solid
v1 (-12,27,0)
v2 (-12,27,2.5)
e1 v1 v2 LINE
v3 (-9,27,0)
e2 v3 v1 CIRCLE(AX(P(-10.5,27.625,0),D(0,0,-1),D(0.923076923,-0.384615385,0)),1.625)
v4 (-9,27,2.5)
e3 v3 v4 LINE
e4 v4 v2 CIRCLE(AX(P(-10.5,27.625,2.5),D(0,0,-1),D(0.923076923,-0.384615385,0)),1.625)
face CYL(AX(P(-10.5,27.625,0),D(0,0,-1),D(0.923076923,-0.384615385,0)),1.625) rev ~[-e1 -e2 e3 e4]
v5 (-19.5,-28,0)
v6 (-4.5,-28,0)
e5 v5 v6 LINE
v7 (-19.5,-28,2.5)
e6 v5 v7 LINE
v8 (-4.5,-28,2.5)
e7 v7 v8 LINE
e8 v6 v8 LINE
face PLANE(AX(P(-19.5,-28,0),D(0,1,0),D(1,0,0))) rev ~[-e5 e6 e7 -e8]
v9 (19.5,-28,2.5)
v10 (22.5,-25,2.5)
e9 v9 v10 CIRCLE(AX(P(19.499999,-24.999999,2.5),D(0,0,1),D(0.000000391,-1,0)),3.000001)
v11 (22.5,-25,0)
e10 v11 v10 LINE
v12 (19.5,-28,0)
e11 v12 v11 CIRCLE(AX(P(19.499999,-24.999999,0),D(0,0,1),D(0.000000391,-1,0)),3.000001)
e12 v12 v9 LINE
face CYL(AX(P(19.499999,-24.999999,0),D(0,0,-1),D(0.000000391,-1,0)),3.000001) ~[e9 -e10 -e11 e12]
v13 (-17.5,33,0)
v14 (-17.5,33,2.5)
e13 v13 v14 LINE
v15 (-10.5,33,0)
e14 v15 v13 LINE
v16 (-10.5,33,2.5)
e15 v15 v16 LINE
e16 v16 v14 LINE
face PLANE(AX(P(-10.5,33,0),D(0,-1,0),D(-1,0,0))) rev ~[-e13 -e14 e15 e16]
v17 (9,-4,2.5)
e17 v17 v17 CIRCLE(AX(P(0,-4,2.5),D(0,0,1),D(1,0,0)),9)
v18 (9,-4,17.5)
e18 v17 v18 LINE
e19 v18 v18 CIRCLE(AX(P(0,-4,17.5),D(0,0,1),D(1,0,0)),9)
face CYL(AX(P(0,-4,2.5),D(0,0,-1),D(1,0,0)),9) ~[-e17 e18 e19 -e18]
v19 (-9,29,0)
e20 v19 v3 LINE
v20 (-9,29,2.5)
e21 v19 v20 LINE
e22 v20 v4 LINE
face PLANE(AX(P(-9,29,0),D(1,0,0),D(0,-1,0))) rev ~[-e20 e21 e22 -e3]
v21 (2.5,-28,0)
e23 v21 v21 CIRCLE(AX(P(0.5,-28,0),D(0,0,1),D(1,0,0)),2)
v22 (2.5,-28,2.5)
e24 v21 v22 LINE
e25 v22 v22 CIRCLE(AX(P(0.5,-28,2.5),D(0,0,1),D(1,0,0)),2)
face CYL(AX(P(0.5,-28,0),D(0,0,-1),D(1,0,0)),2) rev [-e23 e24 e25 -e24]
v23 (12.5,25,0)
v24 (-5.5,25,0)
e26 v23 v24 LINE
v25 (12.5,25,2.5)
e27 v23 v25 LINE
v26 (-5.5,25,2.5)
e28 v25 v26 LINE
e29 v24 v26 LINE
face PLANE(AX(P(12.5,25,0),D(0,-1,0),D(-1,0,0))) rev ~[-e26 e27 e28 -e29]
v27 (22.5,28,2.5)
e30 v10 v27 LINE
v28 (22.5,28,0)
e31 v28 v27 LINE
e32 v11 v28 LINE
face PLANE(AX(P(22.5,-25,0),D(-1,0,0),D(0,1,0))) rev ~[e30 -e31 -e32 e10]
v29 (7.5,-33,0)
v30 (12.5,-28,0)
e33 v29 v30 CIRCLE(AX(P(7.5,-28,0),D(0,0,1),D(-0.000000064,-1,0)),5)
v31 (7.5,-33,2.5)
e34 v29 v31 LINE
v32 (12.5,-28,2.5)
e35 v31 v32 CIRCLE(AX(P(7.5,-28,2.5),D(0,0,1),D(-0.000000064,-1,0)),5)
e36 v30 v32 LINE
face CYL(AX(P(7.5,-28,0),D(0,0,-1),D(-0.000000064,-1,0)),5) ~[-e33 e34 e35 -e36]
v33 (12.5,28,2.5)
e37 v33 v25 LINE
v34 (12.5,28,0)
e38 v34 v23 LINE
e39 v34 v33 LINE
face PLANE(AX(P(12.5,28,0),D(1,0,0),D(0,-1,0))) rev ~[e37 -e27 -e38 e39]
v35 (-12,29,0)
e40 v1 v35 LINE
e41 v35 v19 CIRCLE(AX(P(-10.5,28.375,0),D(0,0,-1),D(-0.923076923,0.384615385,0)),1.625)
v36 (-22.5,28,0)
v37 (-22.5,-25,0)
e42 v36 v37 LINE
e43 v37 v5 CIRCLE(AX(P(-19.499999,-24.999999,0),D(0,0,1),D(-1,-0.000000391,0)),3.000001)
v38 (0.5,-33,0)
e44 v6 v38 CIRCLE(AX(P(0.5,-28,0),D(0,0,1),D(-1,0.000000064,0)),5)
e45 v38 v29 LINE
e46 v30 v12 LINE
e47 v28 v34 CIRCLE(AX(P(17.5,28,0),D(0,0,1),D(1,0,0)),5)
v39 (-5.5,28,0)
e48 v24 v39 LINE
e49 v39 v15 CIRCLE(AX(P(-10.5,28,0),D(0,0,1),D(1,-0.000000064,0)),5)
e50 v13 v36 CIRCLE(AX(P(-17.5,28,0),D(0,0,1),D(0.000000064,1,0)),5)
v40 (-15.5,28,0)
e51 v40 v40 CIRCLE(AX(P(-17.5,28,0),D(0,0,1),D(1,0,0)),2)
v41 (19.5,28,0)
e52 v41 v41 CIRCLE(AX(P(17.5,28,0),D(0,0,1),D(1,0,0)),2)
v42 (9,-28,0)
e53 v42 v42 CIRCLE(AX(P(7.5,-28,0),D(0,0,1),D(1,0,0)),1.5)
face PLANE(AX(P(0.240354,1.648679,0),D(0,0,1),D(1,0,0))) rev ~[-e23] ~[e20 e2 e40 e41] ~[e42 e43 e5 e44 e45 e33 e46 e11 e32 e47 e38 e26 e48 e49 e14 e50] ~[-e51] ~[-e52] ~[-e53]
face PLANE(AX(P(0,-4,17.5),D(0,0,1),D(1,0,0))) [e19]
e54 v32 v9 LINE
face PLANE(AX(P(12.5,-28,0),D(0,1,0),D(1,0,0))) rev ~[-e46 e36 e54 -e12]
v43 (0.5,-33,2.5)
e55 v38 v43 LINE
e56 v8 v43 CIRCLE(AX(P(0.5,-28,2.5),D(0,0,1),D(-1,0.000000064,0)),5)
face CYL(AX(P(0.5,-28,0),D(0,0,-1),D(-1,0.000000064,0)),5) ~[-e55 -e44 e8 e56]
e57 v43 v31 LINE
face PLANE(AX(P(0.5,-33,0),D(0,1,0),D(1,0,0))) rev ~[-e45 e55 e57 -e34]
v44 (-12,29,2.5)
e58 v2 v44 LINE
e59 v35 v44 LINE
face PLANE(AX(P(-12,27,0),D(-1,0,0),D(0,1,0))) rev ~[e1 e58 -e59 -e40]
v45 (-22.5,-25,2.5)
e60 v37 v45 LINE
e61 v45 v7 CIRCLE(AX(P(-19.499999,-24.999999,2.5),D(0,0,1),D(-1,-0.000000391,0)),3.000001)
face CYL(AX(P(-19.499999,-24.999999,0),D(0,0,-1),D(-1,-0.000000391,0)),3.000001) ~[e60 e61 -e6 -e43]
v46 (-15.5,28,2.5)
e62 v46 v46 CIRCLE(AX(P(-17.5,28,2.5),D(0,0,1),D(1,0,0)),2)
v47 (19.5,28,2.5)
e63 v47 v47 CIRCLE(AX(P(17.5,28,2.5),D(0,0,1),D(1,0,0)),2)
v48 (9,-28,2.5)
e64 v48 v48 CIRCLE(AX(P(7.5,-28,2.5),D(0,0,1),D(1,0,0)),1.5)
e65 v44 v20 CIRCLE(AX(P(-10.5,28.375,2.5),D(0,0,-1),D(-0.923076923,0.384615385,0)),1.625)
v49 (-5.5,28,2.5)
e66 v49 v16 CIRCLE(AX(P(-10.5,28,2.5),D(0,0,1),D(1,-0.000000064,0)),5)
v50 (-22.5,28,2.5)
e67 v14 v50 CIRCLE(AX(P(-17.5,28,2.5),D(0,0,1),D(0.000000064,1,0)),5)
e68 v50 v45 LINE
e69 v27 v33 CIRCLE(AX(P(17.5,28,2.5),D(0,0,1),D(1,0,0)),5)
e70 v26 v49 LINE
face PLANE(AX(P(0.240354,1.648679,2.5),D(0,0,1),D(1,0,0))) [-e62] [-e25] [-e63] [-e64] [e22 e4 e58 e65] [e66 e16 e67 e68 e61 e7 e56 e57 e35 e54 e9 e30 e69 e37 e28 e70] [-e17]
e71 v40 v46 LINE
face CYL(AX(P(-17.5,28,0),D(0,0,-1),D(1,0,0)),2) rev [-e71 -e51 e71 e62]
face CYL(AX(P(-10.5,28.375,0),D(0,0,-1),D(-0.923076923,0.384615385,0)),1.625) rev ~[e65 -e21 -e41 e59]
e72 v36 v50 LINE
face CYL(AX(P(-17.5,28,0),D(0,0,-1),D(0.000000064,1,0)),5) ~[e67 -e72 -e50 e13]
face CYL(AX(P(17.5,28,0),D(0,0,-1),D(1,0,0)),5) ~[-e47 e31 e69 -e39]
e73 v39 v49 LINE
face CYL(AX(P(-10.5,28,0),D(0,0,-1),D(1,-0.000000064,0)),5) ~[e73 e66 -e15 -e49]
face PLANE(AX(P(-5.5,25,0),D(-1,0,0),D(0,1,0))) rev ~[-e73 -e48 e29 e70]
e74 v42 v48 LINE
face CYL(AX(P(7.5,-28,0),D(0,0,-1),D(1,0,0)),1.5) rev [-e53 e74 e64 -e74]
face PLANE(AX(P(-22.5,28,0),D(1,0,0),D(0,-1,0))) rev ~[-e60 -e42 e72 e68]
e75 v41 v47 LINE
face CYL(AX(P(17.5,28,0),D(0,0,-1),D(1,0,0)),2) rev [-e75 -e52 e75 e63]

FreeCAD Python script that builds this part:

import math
import FreeCAD as App
import Part
import Sketcher
from FreeCAD import Vector

doc = App.newDocument("Part")
body = doc.addObject("PartDesign::Body", "Body")

# Sketch on XY plane
sketch1 = body.newObject("Sketcher::SketchObject", "Sketch")
sketch1.AttachmentSupport = (doc.getObject("XY_Plane"), [""])
sketch1.MapMode = "FlatFace"
sketch1.addGeometry([
    Part.ArcOfCircle(Part.Circle(Vector(19.499999, -24.999999, 0), Vector(0, 0, 1), 3.000001), math.radians(-89.999978), math.radians(-0.000022)),  # 0
    Part.LineSegment(Vector(22.5, -25, 0), Vector(22.5, 28, 0)),  # 1
    Part.ArcOfCircle(Part.Circle(Vector(17.5, 28, 0), Vector(0, 0, 1), 5), math.radians(0), math.radians(180)),  # 2
    Part.LineSegment(Vector(12.5, 28, 0), Vector(12.5, 25, 0)),  # 3
    Part.LineSegment(Vector(12.5, 25, 0), Vector(-5.5, 25, 0)),  # 4
    Part.LineSegment(Vector(-5.5, 25, 0), Vector(-5.5, 28, 0)),  # 5
    Part.ArcOfCircle(Part.Circle(Vector(-10.5, 28, 0), Vector(0, 0, 1), 5), math.radians(-0.000004), math.radians(90.000004)),  # 6
    Part.LineSegment(Vector(-10.5, 33, 0), Vector(-17.5, 33, 0)),  # 7
    Part.ArcOfCircle(Part.Circle(Vector(-17.5, 28, 0), Vector(0, 0, 1), 5), math.radians(89.999996), math.radians(180.000004)),  # 8
    Part.LineSegment(Vector(-22.5, 28, 0), Vector(-22.5, -25, 0)),  # 9
    Part.ArcOfCircle(Part.Circle(Vector(-19.499999, -24.999999, 0), Vector(0, 0, 1), 3.000001), math.radians(-179.999978), math.radians(-90.000022)),  # 10
    Part.LineSegment(Vector(-19.5, -28, 0), Vector(-4.5, -28, 0)),  # 11
    Part.ArcOfCircle(Part.Circle(Vector(0.5, -28, 0), Vector(0, 0, 1), 5), math.radians(179.999996), math.radians(270.000004)),  # 12
    Part.LineSegment(Vector(0.5, -33, 0), Vector(7.5, -33, 0)),  # 13
    Part.ArcOfCircle(Part.Circle(Vector(7.5, -28, 0), Vector(0, 0, 1), 5), math.radians(-90.000004), math.radians(0.000004)),  # 14
    Part.LineSegment(Vector(12.5, -28, 0), Vector(19.5, -28, 0)),  # 15
    Part.Circle(Vector(0.5, -28, 0), Vector(0, 0, 1), 2),  # 16
    Part.Circle(Vector(7.5, -28, 0), Vector(0, 0, 1), 1.5),  # 17
    Part.Circle(Vector(-17.5, 28, 0), Vector(0, 0, 1), 2),  # 18
    Part.ArcOfCircle(Part.Circle(Vector(-10.5, 27.625, 0), Vector(0, 0, 1), 1.625), math.radians(-157.380135), math.radians(-22.619865)),  # 19
    Part.LineSegment(Vector(-12, 27, 0), Vector(-12, 29, 0)),  # 20
    Part.ArcOfCircle(Part.Circle(Vector(-10.5, 28.375, 0), Vector(0, 0, 1), 1.625), math.radians(22.619865), math.radians(157.380135)),  # 21
    Part.LineSegment(Vector(-9, 29, 0), Vector(-9, 27, 0)),  # 22
    Part.Circle(Vector(17.5, 28, 0), Vector(0, 0, 1), 2),  # 23
], False)
sketch1.addConstraint([
    Sketcher.Constraint("Tangent", 0, 2, 1, 1),
    Sketcher.Constraint("Tangent", 1, 2, 2, 1),
    Sketcher.Constraint("Tangent", 2, 2, 3, 1),
    Sketcher.Constraint("Coincident", 3, 2, 4, 1),
    Sketcher.Constraint("Coincident", 4, 2, 5, 1),
    Sketcher.Constraint("Tangent", 5, 2, 6, 1),
    Sketcher.Constraint("Tangent", 6, 2, 7, 1),
    Sketcher.Constraint("Tangent", 7, 2, 8, 1),
    Sketcher.Constraint("Tangent", 8, 2, 9, 1),
    Sketcher.Constraint("Tangent", 9, 2, 10, 1),
    Sketcher.Constraint("Tangent", 10, 2, 11, 1),
    Sketcher.Constraint("Coincident", 11, 2, 12, 1),
    Sketcher.Constraint("Tangent", 12, 2, 13, 1),
    Sketcher.Constraint("Tangent", 13, 2, 14, 1),
    Sketcher.Constraint("Coincident", 14, 2, 15, 1),
    Sketcher.Constraint("Tangent", 15, 2, 0, 1),
    Sketcher.Constraint("Coincident", 19, 1, 20, 1),
    Sketcher.Constraint("Coincident", 20, 2, 21, 2),
    Sketcher.Constraint("Coincident", 21, 1, 22, 1),
    Sketcher.Constraint("Coincident", 22, 2, 19, 2),
    Sketcher.Constraint("Vertical", 1),
    Sketcher.Constraint("Vertical", 3),
    Sketcher.Constraint("Horizontal", 4),
    Sketcher.Constraint("Vertical", 5),
    Sketcher.Constraint("Horizontal", 7),
    Sketcher.Constraint("Vertical", 9),
    Sketcher.Constraint("Horizontal", 11),
    Sketcher.Constraint("Horizontal", 13),
    Sketcher.Constraint("Horizontal", 15),
    Sketcher.Constraint("Vertical", 20),
    Sketcher.Constraint("Vertical", 22),
    Sketcher.Constraint("Coincident", 16, 3, 12, 3),
    Sketcher.Constraint("Coincident", 17, 3, 14, 3),
    Sketcher.Constraint("Coincident", 18, 3, 8, 3),
    Sketcher.Constraint("Coincident", 23, 3, 2, 3),
    Sketcher.Constraint("Equal", 2, 6),
    Sketcher.Constraint("Equal", 6, 8),
    Sketcher.Constraint("Equal", 0, 10),
    Sketcher.Constraint("Equal", 8, 12),
    Sketcher.Constraint("Equal", 12, 14),
    Sketcher.Constraint("Equal", 16, 18),
    Sketcher.Constraint("Equal", 19, 21),
    Sketcher.Constraint("Equal", 18, 23),
    Sketcher.Constraint("Symmetric", 2, 3, 8, 3, -2),
    Sketcher.Constraint("Symmetric", 2, 2, 14, 2, -1),
    Sketcher.Constraint("Horizontal", 0, 3, 10, 3),
    Sketcher.Constraint("Horizontal", 17, 3, 10, 2),
    Sketcher.Constraint("Horizontal", 20, 2, 21, 1),
    Sketcher.Constraint("Horizontal", 19, 1, 22, 2),
    Sketcher.Constraint("Vertical", 6, 3, 19, 3),
    Sketcher.Constraint("Equal", 7, 13),
    Sketcher.Constraint("Equal", 13, 15),
    Sketcher.Constraint("Diameter", 16, 4.0),
    Sketcher.Constraint("Diameter", 17, 3.0),
    Sketcher.Constraint("Radius", 0, 3.000001),
    Sketcher.Constraint("Radius", 2, 5.0),
    Sketcher.Constraint("DistanceX", 4, 2, 4, 1, 18.0),
    Sketcher.Constraint("DistanceY", 1, 1, 1, 2, 53.0),
    Sketcher.Constraint("DistanceY", 3, 2, 3, 1, 3.0),
    Sketcher.Constraint("DistanceY", 20, 1, 20, 2, 2.0),
    Sketcher.Constraint("DistanceX", 19, 1, -1, 1, 12.0),
    Sketcher.Constraint("DistanceY", -1, 1, 19, 1, 27.0),
    Sketcher.Constraint("Radius", 19, 1.625),
])
pad1 = body.newObject("PartDesign::Pad", "Pad")
pad1.Profile = sketch1
pad1.Length = 2.5

# Sketch on XY plane
sketch2 = body.newObject("Sketcher::SketchObject", "Sketch001")
sketch2.AttachmentSupport = (doc.getObject("XY_Plane"), [""])
sketch2.MapMode = "FlatFace"
sketch2.AttachmentOffset = App.Placement(Vector(0, 0, 2.5), App.Rotation())
sketch2.addGeometry(Part.Circle(Vector(0, -4, 0), Vector(0, 0, 1), 9), False)
sketch2.addConstraint([
    Sketcher.Constraint("PointOnObject", 0, 3, -2),
    Sketcher.Constraint("Diameter", 0, 18.0),
    Sketcher.Constraint("DistanceY", 0, 3, -1, 1, 4.0),
])
pad2 = body.newObject("PartDesign::Pad", "Pad001")
pad2.Profile = sketch2
pad2.Length = 15

doc.recompute()
